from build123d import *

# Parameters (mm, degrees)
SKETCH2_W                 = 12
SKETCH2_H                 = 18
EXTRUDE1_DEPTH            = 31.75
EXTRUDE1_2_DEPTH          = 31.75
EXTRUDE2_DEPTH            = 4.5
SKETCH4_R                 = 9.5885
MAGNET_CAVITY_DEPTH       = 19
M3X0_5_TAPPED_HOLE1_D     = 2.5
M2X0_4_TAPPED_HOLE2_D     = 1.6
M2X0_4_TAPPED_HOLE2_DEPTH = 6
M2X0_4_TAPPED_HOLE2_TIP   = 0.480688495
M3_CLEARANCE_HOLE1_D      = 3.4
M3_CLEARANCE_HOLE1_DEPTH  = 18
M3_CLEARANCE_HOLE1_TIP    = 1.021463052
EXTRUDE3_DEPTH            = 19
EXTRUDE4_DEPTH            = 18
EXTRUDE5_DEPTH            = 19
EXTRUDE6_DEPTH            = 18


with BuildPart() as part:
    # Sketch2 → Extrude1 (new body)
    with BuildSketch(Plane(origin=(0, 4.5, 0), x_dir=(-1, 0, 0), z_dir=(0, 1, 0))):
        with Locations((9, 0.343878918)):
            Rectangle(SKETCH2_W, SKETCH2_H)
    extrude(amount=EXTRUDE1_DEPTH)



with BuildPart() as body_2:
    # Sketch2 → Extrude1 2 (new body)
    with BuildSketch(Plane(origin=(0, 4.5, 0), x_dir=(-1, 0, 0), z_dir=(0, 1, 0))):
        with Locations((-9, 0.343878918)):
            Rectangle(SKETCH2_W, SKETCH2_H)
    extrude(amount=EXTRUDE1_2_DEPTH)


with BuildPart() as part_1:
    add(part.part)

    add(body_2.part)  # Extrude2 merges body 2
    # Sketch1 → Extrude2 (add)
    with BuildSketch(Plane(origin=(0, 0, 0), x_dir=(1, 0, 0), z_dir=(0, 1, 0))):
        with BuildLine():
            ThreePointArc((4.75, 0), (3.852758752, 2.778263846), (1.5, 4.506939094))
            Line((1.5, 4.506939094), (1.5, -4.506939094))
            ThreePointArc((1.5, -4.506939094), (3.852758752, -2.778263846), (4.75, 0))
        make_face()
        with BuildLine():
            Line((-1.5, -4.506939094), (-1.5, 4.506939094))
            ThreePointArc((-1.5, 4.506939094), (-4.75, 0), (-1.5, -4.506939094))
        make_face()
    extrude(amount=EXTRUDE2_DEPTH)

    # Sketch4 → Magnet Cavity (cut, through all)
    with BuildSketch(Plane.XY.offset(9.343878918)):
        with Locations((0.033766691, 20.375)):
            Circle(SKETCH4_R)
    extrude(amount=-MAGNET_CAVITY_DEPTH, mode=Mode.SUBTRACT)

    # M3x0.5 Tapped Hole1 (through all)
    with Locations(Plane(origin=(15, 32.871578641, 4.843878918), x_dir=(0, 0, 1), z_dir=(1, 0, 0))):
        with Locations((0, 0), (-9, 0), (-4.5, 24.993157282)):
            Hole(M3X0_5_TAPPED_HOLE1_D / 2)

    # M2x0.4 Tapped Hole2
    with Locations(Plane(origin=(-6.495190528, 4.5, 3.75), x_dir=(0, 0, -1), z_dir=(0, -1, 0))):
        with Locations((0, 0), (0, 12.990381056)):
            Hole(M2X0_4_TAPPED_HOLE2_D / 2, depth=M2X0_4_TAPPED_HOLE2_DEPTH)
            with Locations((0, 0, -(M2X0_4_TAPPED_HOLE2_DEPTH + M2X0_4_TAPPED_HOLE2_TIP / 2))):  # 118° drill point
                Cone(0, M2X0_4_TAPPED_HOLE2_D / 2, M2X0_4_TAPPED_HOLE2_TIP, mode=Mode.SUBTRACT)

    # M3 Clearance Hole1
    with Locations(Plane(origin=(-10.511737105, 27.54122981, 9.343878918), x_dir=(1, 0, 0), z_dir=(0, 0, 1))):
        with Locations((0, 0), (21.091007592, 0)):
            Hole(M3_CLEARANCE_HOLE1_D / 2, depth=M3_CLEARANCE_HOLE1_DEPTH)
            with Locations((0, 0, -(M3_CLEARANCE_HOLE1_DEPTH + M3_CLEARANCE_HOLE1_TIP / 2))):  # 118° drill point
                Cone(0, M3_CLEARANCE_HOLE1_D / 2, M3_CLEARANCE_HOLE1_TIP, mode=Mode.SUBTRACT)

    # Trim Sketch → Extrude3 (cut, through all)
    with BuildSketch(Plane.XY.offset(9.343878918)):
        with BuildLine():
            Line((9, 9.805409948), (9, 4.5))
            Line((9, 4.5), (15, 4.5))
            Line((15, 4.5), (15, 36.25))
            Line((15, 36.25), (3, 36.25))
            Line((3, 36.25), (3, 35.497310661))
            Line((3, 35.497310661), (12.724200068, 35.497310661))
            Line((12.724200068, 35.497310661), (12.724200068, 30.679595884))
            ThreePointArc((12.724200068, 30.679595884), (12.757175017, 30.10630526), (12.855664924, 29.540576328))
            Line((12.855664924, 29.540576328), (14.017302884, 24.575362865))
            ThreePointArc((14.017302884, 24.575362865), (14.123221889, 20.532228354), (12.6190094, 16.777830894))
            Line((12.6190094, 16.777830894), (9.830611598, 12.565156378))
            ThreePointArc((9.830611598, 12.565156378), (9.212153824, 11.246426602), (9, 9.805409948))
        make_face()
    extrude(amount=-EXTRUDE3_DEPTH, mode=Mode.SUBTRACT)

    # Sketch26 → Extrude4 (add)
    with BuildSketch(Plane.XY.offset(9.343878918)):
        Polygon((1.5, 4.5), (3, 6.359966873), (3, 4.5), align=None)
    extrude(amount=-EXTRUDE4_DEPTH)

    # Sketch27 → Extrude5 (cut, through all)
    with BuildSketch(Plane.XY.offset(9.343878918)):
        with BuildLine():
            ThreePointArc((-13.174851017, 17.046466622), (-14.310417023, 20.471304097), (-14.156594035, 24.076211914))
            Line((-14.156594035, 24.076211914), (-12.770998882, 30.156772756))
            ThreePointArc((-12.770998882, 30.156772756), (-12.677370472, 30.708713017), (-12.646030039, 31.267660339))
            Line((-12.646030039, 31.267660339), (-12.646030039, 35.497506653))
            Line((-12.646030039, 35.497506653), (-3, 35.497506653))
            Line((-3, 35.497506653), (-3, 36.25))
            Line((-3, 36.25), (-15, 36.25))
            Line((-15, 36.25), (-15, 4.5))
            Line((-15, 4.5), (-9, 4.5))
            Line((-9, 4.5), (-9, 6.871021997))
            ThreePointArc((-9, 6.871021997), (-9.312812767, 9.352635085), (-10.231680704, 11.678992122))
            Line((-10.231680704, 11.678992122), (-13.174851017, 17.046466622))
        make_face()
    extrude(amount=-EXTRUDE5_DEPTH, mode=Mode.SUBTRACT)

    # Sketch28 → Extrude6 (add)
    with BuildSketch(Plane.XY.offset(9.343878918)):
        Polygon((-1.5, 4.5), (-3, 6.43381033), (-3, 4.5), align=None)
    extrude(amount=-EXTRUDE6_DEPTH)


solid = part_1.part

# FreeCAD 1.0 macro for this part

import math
import FreeCAD as App
import Part
import Sketcher
from FreeCAD import Vector


def add_polygon(sketch, points):
    """Adds a closed chain of lines whose ends are joined by coincident constraints."""
    first, n = sketch.GeometryCount, len(points)
    for a, b in zip(points, points[1:] + points[:1]):
        sketch.addGeometry(Part.LineSegment(App.Vector(*a, 0), App.Vector(*b, 0)), False)
    for i in range(n):
        sketch.addConstraint(Sketcher.Constraint("Coincident", first + i, 2, first + (i + 1) % n, 1))

doc = App.newDocument("Part")
body = doc.addObject("PartDesign::Body", "Body")

# Sketch on XZ plane
sketch1 = body.newObject("Sketcher::SketchObject", "Sketch")
sketch1.AttachmentSupport = (doc.getObject("XZ_Plane"), [""])
sketch1.MapMode = "FlatFace"
sketch1.AttachmentOffset = App.Placement(Vector(0, 0, -4.5), App.Rotation())
add_polygon(sketch1, [(-3, 9.343879), (-3, -8.656121), (-15, -8.656121), (-15, 9.343879)])  # lines 0-3
sketch1.addConstraint(Sketcher.Constraint("Vertical", 0))
sketch1.addConstraint(Sketcher.Constraint("Horizontal", 1))
sketch1.addConstraint(Sketcher.Constraint("Vertical", 2))
sketch1.addConstraint(Sketcher.Constraint("Horizontal", 3))
sketch1.addConstraint(Sketcher.Constraint("DistanceX", 1, 2, 1, 1, 12.0))
sketch1.addConstraint(Sketcher.Constraint("DistanceY", 0, 2, 0, 1, 18.0))
sketch1.addConstraint(Sketcher.Constraint("DistanceX", 0, 2, -1, 1, 3.0))
sketch1.addConstraint(Sketcher.Constraint("DistanceY", 0, 2, -1, 1, 8.656121))
pad1 = body.newObject("PartDesign::Pad", "Pad")
pad1.Profile = sketch1
pad1.Length = 31.75
pad1.Reversed = True
body2 = doc.addObject("PartDesign::Body", "Body001")

# Sketch on XZ plane
sketch2 = body2.newObject("Sketcher::SketchObject", "Sketch001")
sketch2.AttachmentSupport = (doc.getObject("XZ_Plane001"), [""])
sketch2.MapMode = "FlatFace"
sketch2.AttachmentOffset = App.Placement(Vector(0, 0, -4.5), App.Rotation())
add_polygon(sketch2, [(15, 9.343879), (15, -8.656121), (3, -8.656121), (3, 9.343879)])  # lines 0-3
sketch2.addConstraint(Sketcher.Constraint("Vertical", 0))
sketch2.addConstraint(Sketcher.Constraint("Horizontal", 1))
sketch2.addConstraint(Sketcher.Constraint("Vertical", 2))
sketch2.addConstraint(Sketcher.Constraint("Horizontal", 3))
sketch2.addConstraint(Sketcher.Constraint("DistanceX", 1, 2, 1, 1, 12.0))
sketch2.addConstraint(Sketcher.Constraint("DistanceY", 0, 2, 0, 1, 18.0))
sketch2.addConstraint(Sketcher.Constraint("DistanceX", -1, 1, 0, 2, 15.0))
sketch2.addConstraint(Sketcher.Constraint("DistanceY", 0, 2, -1, 1, 8.656121))
pad2 = body2.newObject("PartDesign::Pad", "Pad001")
pad2.Profile = sketch2
pad2.Length = 31.75
pad2.Reversed = True
body.AllowCompound = True
doc.recompute()

boolean = body.newObject("PartDesign::Boolean", "Boolean")
boolean.Type = "Fuse"
boolean.addObjects([body2])

# Sketch on XZ plane
sketch3 = body.newObject("Sketcher::SketchObject", "Sketch002")
sketch3.AttachmentSupport = (doc.getObject("XZ_Plane"), [""])
sketch3.MapMode = "FlatFace"
sketch3.addGeometry(Part.ArcOfCircle(Part.Circle(Vector(0, 0, 0), Vector(0, 0, 1), 4.75), math.radians(-71.59152), math.radians(0)), False)
sketch3.addGeometry(Part.LineSegment(Vector(1.5, -4.506939, 0), Vector(1.5, 4.506939, 0)), False)
sketch3.addGeometry(Part.ArcOfCircle(Part.Circle(Vector(0, 0, 0), Vector(0, 0, 1), 4.75), math.radians(0), math.radians(71.59152)), False)
sketch3.addGeometry(Part.LineSegment(Vector(-1.5, 4.506939, 0), Vector(-1.5, -4.506939, 0)), False)
sketch3.addGeometry(Part.ArcOfCircle(Part.Circle(Vector(0, 0, 0), Vector(0, 0, 1), 4.75), math.radians(108.40848), math.radians(251.59152)), False)
sketch3.addConstraint(Sketcher.Constraint("Coincident", 0, 1, 1, 1))
sketch3.addConstraint(Sketcher.Constraint("Coincident", 1, 2, 2, 2))
sketch3.addConstraint(Sketcher.Constraint("Tangent", 2, 1, 0, 2))
sketch3.addConstraint(Sketcher.Constraint("Coincident", 3, 1, 4, 1))
sketch3.addConstraint(Sketcher.Constraint("Coincident", 4, 2, 3, 2))
sketch3.addConstraint(Sketcher.Constraint("Vertical", 1))
sketch3.addConstraint(Sketcher.Constraint("Vertical", 3))
sketch3.addConstraint(Sketcher.Constraint("Coincident", 0, 3, -1, 1))
sketch3.addConstraint(Sketcher.Constraint("Coincident", 4, 3, -1, 1))
sketch3.addConstraint(Sketcher.Constraint("Equal", 0, 2))
sketch3.addConstraint(Sketcher.Constraint("Equal", 2, 4))
sketch3.addConstraint(Sketcher.Constraint("PointOnObject", 2, 1, -1))
sketch3.addConstraint(Sketcher.Constraint("Horizontal", 1, 2, 3, 1))
sketch3.addConstraint(Sketcher.Constraint("Radius", 0, 4.75))
sketch3.addConstraint(Sketcher.Constraint("DistanceX", 3, 1, 1, 2, 3.0))
pad3 = body.newObject("PartDesign::Pad", "Pad002")
pad3.Profile = sketch3
pad3.Length = 4.5
pad3.Reversed = True

# Sketch on XY plane
sketch4 = body.newObject("Sketcher::SketchObject", "Sketch003")
sketch4.AttachmentSupport = (doc.getObject("XY_Plane"), [""])
sketch4.MapMode = "FlatFace"
sketch4.AttachmentOffset = App.Placement(Vector(0, 0, 9.343879), App.Rotation())
sketch4.addGeometry(Part.Circle(Vector(0.033767, 20.375, 0), Vector(0, 0, 1), 9.5885), False)
sketch4.addConstraint(Sketcher.Constraint("Diameter", 0, 19.177))
sketch4.addConstraint(Sketcher.Constraint("DistanceY", -1, 1, 0, 3, 20.375))
sketch4.addConstraint(Sketcher.Constraint("DistanceX", -1, 1, 0, 3, 0.033767))
pocket1 = body.newObject("PartDesign::Pocket", "Pocket")
pocket1.Profile = sketch4
pocket1.Type = "ThroughAll"

# Sketch on YZ plane
sketch5 = body.newObject("Sketcher::SketchObject", "Sketch004")
sketch5.AttachmentSupport = (doc.getObject("YZ_Plane"), [""])
sketch5.MapMode = "FlatFace"
sketch5.AttachmentOffset = App.Placement(Vector(0, 0, 15), App.Rotation())
sketch5.addGeometry(Part.Circle(Vector(32.871579, 4.843879, 0), Vector(0, 0, 1), 1.25), False)
sketch5.addGeometry(Part.Circle(Vector(32.871579, -4.156121, 0), Vector(0, 0, 1), 1.25), False)
sketch5.addGeometry(Part.Circle(Vector(7.878421, 0.343879, 0), Vector(0, 0, 1), 1.25), False)
sketch5.addConstraint(Sketcher.Constraint("Equal", 0, 1))
sketch5.addConstraint(Sketcher.Constraint("Equal", 1, 2))
sketch5.addConstraint(Sketcher.Constraint("Vertical", 0, 3, 1, 3))
sketch5.addConstraint(Sketcher.Constraint("Diameter", 0, 2.5))
sketch5.addConstraint(Sketcher.Constraint("DistanceY", 1, 3, 0, 3, 9.0))
sketch5.addConstraint(Sketcher.Constraint("DistanceY", 2, 3, 0, 3, 4.5))
sketch5.addConstraint(Sketcher.Constraint("DistanceX", -1, 1, 0, 3, 32.871579))
sketch5.addConstraint(Sketcher.Constraint("DistanceY", -1, 1, 0, 3, 4.843879))
sketch5.addConstraint(Sketcher.Constraint("DistanceX", -1, 1, 2, 3, 7.878421))
doc.recompute()
hole = body.newObject("PartDesign::Hole", "Hole")
hole.Profile = sketch5
hole.ThreadType = "None"
hole.Diameter = 2.5
hole.DepthType = "ThroughAll"

# Sketch on XZ plane
sketch6 = body.newObject("Sketcher::SketchObject", "Sketch005")
sketch6.AttachmentSupport = (doc.getObject("XZ_Plane"), [""])
sketch6.MapMode = "FlatFace"
sketch6.AttachmentOffset = App.Placement(Vector(0, 0, -4.5), App.Rotation())
sketch6.addGeometry(Part.Circle(Vector(-6.495191, 3.75, 0), Vector(0, 0, 1), 0.8), False)
sketch6.addGeometry(Part.Circle(Vector(6.495191, 3.75, 0), Vector(0, 0, 1), 0.8), False)
sketch6.addConstraint(Sketcher.Constraint("Equal", 0, 1))
sketch6.addConstraint(Sketcher.Constraint("Symmetric", 0, 3, 1, 3, -2))
sketch6.addConstraint(Sketcher.Constraint("Diameter", 0, 1.6))
sketch6.addConstraint(Sketcher.Constraint("DistanceY", -1, 1, 0, 3, 3.75))
sketch6.addConstraint(Sketcher.Constraint("DistanceX", 0, 3, -1, 1, 6.495191))
doc.recompute()
hole2 = body.newObject("PartDesign::Hole", "Hole001")
hole2.Profile = sketch6
hole2.ThreadType = "None"
hole2.Diameter = 1.6
hole2.DepthType = "Dimension"
hole2.Depth = 6
hole2.DrillPoint = "Angled"
hole2.DrillPointAngle = 118

# Sketch on XY plane
sketch7 = body.newObject("Sketcher::SketchObject", "Sketch006")
sketch7.AttachmentSupport = (doc.getObject("XY_Plane"), [""])
sketch7.MapMode = "FlatFace"
sketch7.AttachmentOffset = App.Placement(Vector(0, 0, 9.343879), App.Rotation())
sketch7.addGeometry(Part.Circle(Vector(-10.511737, 27.54123, 0), Vector(0, 0, 1), 1.7), False)
sketch7.addGeometry(Part.Circle(Vector(10.57927, 27.54123, 0), Vector(0, 0, 1), 1.7), False)
sketch7.addConstraint(Sketcher.Constraint("Equal", 0, 1))
sketch7.addConstraint(Sketcher.Constraint("Horizontal", 0, 3, 1, 3))
sketch7.addConstraint(Sketcher.Constraint("Diameter", 0, 3.4))
sketch7.addConstraint(Sketcher.Constraint("DistanceY", -1, 1, 0, 3, 27.54123))
sketch7.addConstraint(Sketcher.Constraint("DistanceX", -1, 1, 1, 3, 10.57927))
sketch7.addConstraint(Sketcher.Constraint("DistanceX", 0, 3, -1, 1, 10.511737))
doc.recompute()
hole3 = body.newObject("PartDesign::Hole", "Hole002")
hole3.Profile = sketch7
hole3.ThreadType = "None"
hole3.Diameter = 3.4
hole3.DepthType = "Dimension"
hole3.Depth = 18
hole3.DrillPoint = "Angled"
hole3.DrillPointAngle = 118

# Sketch on XY plane
sketch8 = body.newObject("Sketcher::SketchObject", "Sketch007")
sketch8.AttachmentSupport = (doc.getObject("XY_Plane"), [""])
sketch8.MapMode = "FlatFace"
sketch8.AttachmentOffset = App.Placement(Vector(0, 0, 9.343879), App.Rotation())
sketch8.addGeometry(Part.LineSegment(Vector(9, 9.80541, 0), Vector(9, 4.5, 0)), False)
sketch8.addGeometry(Part.LineSegment(Vector(9, 4.5, 0), Vector(15, 4.5, 0)), False)
sketch8.addGeometry(Part.LineSegment(Vector(15, 4.5, 0), Vector(15, 36.25, 0)), False)
sketch8.addGeometry(Part.LineSegment(Vector(15, 36.25, 0), Vector(3, 36.25, 0)), False)
sketch8.addGeometry(Part.LineSegment(Vector(3, 36.25, 0), Vector(3, 35.497311, 0)), False)
sketch8.addGeometry(Part.LineSegment(Vector(3, 35.497311, 0), Vector(12.7242, 35.497311, 0)), False)
sketch8.addGeometry(Part.LineSegment(Vector(12.7242, 35.497311, 0), Vector(12.7242, 30.679596, 0)), False)
sketch8.addGeometry(Part.ArcOfCircle(Part.Circle(Vector(17.7242, 30.679596, 0), Vector(0, 0, 1), 5), math.radians(-180), math.radians(-166.832187)), False)
sketch8.addGeometry(Part.LineSegment(Vector(12.855665, 29.540576, 0), Vector(14.017303, 24.575363, 0)), False)
sketch8.addGeometry(Part.ArcOfCircle(Part.Circle(Vector(4.280233, 22.297324, 0), Vector(0, 0, 1), 10), math.radians(-33.500845), math.radians(13.167813)), False)
sketch8.addGeometry(Part.LineSegment(Vector(12.619009, 16.777831, 0), Vector(9.830612, 12.565156, 0)), False)
sketch8.addGeometry(Part.ArcOfCircle(Part.Circle(Vector(14, 9.80541, 0), Vector(0, 0, 1), 5), math.radians(146.499155), math.radians(180)), False)
sketch8.addConstraint(Sketcher.Constraint("Coincident", 0, 2, 1, 1))
sketch8.addConstraint(Sketcher.Constraint("Coincident", 1, 2, 2, 1))
sketch8.addConstraint(Sketcher.Constraint("Coincident", 2, 2, 3, 1))
sketch8.addConstraint(Sketcher.Constraint("Coincident", 3, 2, 4, 1))
sketch8.addConstraint(Sketcher.Constraint("Coincident", 4, 2, 5, 1))
sketch8.addConstraint(Sketcher.Constraint("Coincident", 5, 2, 6, 1))
sketch8.addConstraint(Sketcher.Constraint("Tangent", 6, 2, 7, 1))
sketch8.addConstraint(Sketcher.Constraint("Tangent", 7, 2, 8, 1))
sketch8.addConstraint(Sketcher.Constraint("Tangent", 8, 2, 9, 2))
sketch8.addConstraint(Sketcher.Constraint("Tangent", 9, 1, 10, 1))
sketch8.addConstraint(Sketcher.Constraint("Tangent", 10, 2, 11, 1))
sketch8.addConstraint(Sketcher.Constraint("Tangent", 11, 2, 0, 1))
sketch8.addConstraint(Sketcher.Constraint("Vertical", 0))
sketch8.addConstraint(Sketcher.Constraint("Horizontal", 1))
sketch8.addConstraint(Sketcher.Constraint("Vertical", 2))
sketch8.addConstraint(Sketcher.Constraint("Horizontal", 3))
sketch8.addConstraint(Sketcher.Constraint("Vertical", 4))
sketch8.addConstraint(Sketcher.Constraint("Horizontal", 5))
sketch8.addConstraint(Sketcher.Constraint("Vertical", 6))
sketch8.addConstraint(Sketcher.Constraint("Equal", 7, 11))
sketch8.addConstraint(Sketcher.Constraint("Radius", 7, 5.0))
sketch8.addConstraint(Sketcher.Constraint("Radius", 9, 10.0))
sketch8.addConstraint(Sketcher.Constraint("DistanceX", 1, 1, 1, 2, 6.0))
sketch8.addConstraint(Sketcher.Constraint("DistanceX", 3, 2, 3, 1, 12.0))
sketch8.addConstraint(Sketcher.Constraint("DistanceX", -1, 1, 11, 3, 14.0))
sketch8.addConstraint(Sketcher.Constraint("DistanceY", 2, 1, 2, 2, 31.75))
sketch8.addConstraint(Sketcher.Constraint("DistanceY", -1, 1, 0, 2, 4.5))
sketch8.addConstraint(Sketcher.Constraint("DistanceX", 5, 1, 5, 2, 9.7242))
sketch8.addConstraint(Sketcher.Constraint("DistanceY", 0, 2, 0, 1, 5.30541))
sketch8.addConstraint(Sketcher.Constraint("DistanceY", 4, 2, 4, 1, 0.752689))
sketch8.addConstraint(Sketcher.Constraint("Distance", 8, 5.099289))
sketch8.addConstraint(Sketcher.Constraint("Distance", 10, 5.051909))
sketch8.addConstraint(Sketcher.Constraint("DistanceY", 6, 2, 6, 1, 4.817715))
pocket2 = body.newObject("PartDesign::Pocket", "Pocket001")
pocket2.Profile = sketch8
pocket2.Type = "ThroughAll"

# Sketch on XY plane
sketch9 = body.newObject("Sketcher::SketchObject", "Sketch008")
sketch9.AttachmentSupport = (doc.getObject("XY_Plane"), [""])
sketch9.MapMode = "FlatFace"
sketch9.AttachmentOffset = App.Placement(Vector(0, 0, 9.343879), App.Rotation())
add_polygon(sketch9, [(3, 6.359967), (1.5, 4.5), (3, 4.5)])  # lines 0-2
sketch9.addConstraint(Sketcher.Constraint("Horizontal", 1))
sketch9.addConstraint(Sketcher.Constraint("Vertical", 2))
sketch9.addConstraint(Sketcher.Constraint("DistanceX", 1, 1, 1, 2, 1.5))
sketch9.addConstraint(Sketcher.Constraint("DistanceX", -1, 1, 1, 2, 3.0))
sketch9.addConstraint(Sketcher.Constraint("DistanceY", -1, 1, 0, 2, 4.5))
sketch9.addConstraint(Sketcher.Constraint("Distance", 0, 2.389451))
pad4 = body.newObject("PartDesign::Pad", "Pad003")
pad4.Profile = sketch9
pad4.Length = 18
pad4.Reversed = True

# Sketch on XY plane
sketch10 = body.newObject("Sketcher::SketchObject", "Sketch009")
sketch10.AttachmentSupport = (doc.getObject("XY_Plane"), [""])
sketch10.MapMode = "FlatFace"
sketch10.AttachmentOffset = App.Placement(Vector(0, 0, 9.343879), App.Rotation())
sketch10.addGeometry(Part.ArcOfCircle(Part.Circle(Vector(-4.406532, 21.854437, 0), Vector(0, 0, 1), 10), math.radians(167.163039), math.radians(208.737469)), False)
sketch10.addGeometry(Part.LineSegment(Vector(-14.156594, 24.076212, 0), Vector(-12.770999, 30.156773, 0)), False)
sketch10.addGeometry(Part.ArcOfCircle(Part.Circle(Vector(-17.64603, 31.26766, 0), Vector(0, 0, 1), 5), math.radians(-12.836961), math.radians(0)), False)
sketch10.addGeometry(Part.LineSegment(Vector(-12.64603, 31.26766, 0), Vector(-12.64603, 35.497507, 0)), False)
sketch10.addGeometry(Part.LineSegment(Vector(-12.64603, 35.497507, 0), Vector(-3, 35.497507, 0)), False)
sketch10.addGeometry(Part.LineSegment(Vector(-3, 35.497507, 0), Vector(-3, 36.25, 0)), False)
sketch10.addGeometry(Part.LineSegment(Vector(-3, 36.25, 0), Vector(-15, 36.25, 0)), False)
sketch10.addGeometry(Part.LineSegment(Vector(-15, 36.25, 0), Vector(-15, 4.5, 0)), False)
sketch10.addGeometry(Part.LineSegment(Vector(-15, 4.5, 0), Vector(-9, 4.5, 0)), False)
sketch10.addGeometry(Part.LineSegment(Vector(-9, 4.5, 0), Vector(-9, 6.871022, 0)), False)
sketch10.addGeometry(Part.ArcOfCircle(Part.Circle(Vector(-19, 6.871022, 0), Vector(0, 0, 1), 10), math.radians(0), math.radians(28.737469)), False)
sketch10.addGeometry(Part.LineSegment(Vector(-10.231681, 11.678992, 0), Vector(-13.174851, 17.046467, 0)), False)
sketch10.addConstraint(Sketcher.Constraint("Tangent", 0, 1, 1, 1))
sketch10.addConstraint(Sketcher.Constraint("Tangent", 1, 2, 2, 1))
sketch10.addConstraint(Sketcher.Constraint("Tangent", 2, 2, 3, 1))
sketch10.addConstraint(Sketcher.Constraint("Coincident", 3, 2, 4, 1))
sketch10.addConstraint(Sketcher.Constraint("Coincident", 4, 2, 5, 1))
sketch10.addConstraint(Sketcher.Constraint("Coincident", 5, 2, 6, 1))
sketch10.addConstraint(Sketcher.Constraint("Coincident", 6, 2, 7, 1))
sketch10.addConstraint(Sketcher.Constraint("Coincident", 7, 2, 8, 1))
sketch10.addConstraint(Sketcher.Constraint("Coincident", 8, 2, 9, 1))
sketch10.addConstraint(Sketcher.Constraint("Tangent", 9, 2, 10, 1))
sketch10.addConstraint(Sketcher.Constraint("Tangent", 10, 2, 11, 1))
sketch10.addConstraint(Sketcher.Constraint("Tangent", 11, 2, 0, 2))
sketch10.addConstraint(Sketcher.Constraint("Vertical", 3))
sketch10.addConstraint(Sketcher.Constraint("Horizontal", 4))
sketch10.addConstraint(Sketcher.Constraint("Vertical", 5))
sketch10.addConstraint(Sketcher.Constraint("Horizontal", 6))
sketch10.addConstraint(Sketcher.Constraint("Vertical", 7))
sketch10.addConstraint(Sketcher.Constraint("Horizontal", 8))
sketch10.addConstraint(Sketcher.Constraint("Vertical", 9))
sketch10.addConstraint(Sketcher.Constraint("Equal", 0, 10))
sketch10.addConstraint(Sketcher.Constraint("Radius", 0, 10.0))
sketch10.addConstraint(Sketcher.Constraint("Radius", 2, 5.0))
sketch10.addConstraint(Sketcher.Constraint("DistanceX", 6, 2, 6, 1, 12.0))
sketch10.addConstraint(Sketcher.Constraint("DistanceX", 8, 1, 8, 2, 6.0))
sketch10.addConstraint(Sketcher.Constraint("DistanceX", 10, 3, -1, 1, 19.0))
sketch10.addConstraint(Sketcher.Constraint("DistanceY", 7, 2, 7, 1, 31.75))
sketch10.addConstraint(Sketcher.Constraint("DistanceY", -1, 1, 7, 2, 4.5))
sketch10.addConstraint(Sketcher.Constraint("DistanceX", 1, 2, -1, 1, 12.770999))
sketch10.addConstraint(Sketcher.Constraint("DistanceX", 4, 1, 4, 2, 9.64603))
sketch10.addConstraint(Sketcher.Constraint("DistanceY", 9, 1, 9, 2, 2.371022))
sketch10.addConstraint(Sketcher.Constraint("DistanceX", 2, 3, 0, 3, 13.239498))
sketch10.addConstraint(Sketcher.Constraint("Distance", 11, 6.121441))
sketch10.addConstraint(Sketcher.Constraint("DistanceY", 3, 1, 3, 2, 4.229846))
pocket3 = body.newObject("PartDesign::Pocket", "Pocket002")
pocket3.Profile = sketch10
pocket3.Type = "ThroughAll"

# Sketch on XY plane
sketch11 = body.newObject("Sketcher::SketchObject", "Sketch010")
sketch11.AttachmentSupport = (doc.getObject("XY_Plane"), [""])
sketch11.MapMode = "FlatFace"
sketch11.AttachmentOffset = App.Placement(Vector(0, 0, 9.343879), App.Rotation())
add_polygon(sketch11, [(-1.5, 4.5), (-3, 6.43381), (-3, 4.5)])  # lines 0-2
sketch11.addConstraint(Sketcher.Constraint("Vertical", 1))
sketch11.addConstraint(Sketcher.Constraint("Horizontal", 2))
sketch11.addConstraint(Sketcher.Constraint("DistanceX", 2, 1, 2, 2, 1.5))
sketch11.addConstraint(Sketcher.Constraint("DistanceX", 0, 2, -1, 1, 3.0))
sketch11.addConstraint(Sketcher.Constraint("DistanceY", -1, 1, 1, 2, 4.5))
sketch11.addConstraint(Sketcher.Constraint("DistanceY", 1, 2, 1, 1, 1.93381))
pad5 = body.newObject("PartDesign::Pad", "Pad004")
pad5.Profile = sketch11
pad5.Length = 18
pad5.Reversed = True

doc.recompute()
